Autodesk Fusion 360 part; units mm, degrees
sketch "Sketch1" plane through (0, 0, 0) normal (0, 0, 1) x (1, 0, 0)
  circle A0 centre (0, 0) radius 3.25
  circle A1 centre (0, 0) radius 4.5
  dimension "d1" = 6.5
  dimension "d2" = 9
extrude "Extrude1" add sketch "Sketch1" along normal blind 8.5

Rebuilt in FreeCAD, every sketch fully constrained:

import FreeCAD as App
import Part
import Sketcher

doc = App.newDocument("Part")
body = doc.addObject("PartDesign::Body", "Body")

# Sketch on XY plane
sketch1 = body.newObject("Sketcher::SketchObject", "Sketch")
sketch1.AttachmentSupport = (doc.getObject("XY_Plane"), [""])
sketch1.MapMode = "FlatFace"
sketch1.addGeometry([
    Part.Circle(App.Vector(0, 0, 0), App.Vector(0, 0, 1), 4.5),
    Part.Circle(App.Vector(0, 0, 0), App.Vector(0, 0, 1), 3.25),
], False)
sketch1.addConstraint([
    Sketcher.Constraint("Coincident", 0, 3, -1, 1),
    Sketcher.Constraint("Coincident", 1, 3, -1, 1),
    Sketcher.Constraint("Diameter", 0, 9.0),
    Sketcher.Constraint("Diameter", 1, 6.5),
])
pad1 = body.newObject("PartDesign::Pad", "Pad")
pad1.Profile = sketch1
pad1.Length = 8.5

doc.recompute()
